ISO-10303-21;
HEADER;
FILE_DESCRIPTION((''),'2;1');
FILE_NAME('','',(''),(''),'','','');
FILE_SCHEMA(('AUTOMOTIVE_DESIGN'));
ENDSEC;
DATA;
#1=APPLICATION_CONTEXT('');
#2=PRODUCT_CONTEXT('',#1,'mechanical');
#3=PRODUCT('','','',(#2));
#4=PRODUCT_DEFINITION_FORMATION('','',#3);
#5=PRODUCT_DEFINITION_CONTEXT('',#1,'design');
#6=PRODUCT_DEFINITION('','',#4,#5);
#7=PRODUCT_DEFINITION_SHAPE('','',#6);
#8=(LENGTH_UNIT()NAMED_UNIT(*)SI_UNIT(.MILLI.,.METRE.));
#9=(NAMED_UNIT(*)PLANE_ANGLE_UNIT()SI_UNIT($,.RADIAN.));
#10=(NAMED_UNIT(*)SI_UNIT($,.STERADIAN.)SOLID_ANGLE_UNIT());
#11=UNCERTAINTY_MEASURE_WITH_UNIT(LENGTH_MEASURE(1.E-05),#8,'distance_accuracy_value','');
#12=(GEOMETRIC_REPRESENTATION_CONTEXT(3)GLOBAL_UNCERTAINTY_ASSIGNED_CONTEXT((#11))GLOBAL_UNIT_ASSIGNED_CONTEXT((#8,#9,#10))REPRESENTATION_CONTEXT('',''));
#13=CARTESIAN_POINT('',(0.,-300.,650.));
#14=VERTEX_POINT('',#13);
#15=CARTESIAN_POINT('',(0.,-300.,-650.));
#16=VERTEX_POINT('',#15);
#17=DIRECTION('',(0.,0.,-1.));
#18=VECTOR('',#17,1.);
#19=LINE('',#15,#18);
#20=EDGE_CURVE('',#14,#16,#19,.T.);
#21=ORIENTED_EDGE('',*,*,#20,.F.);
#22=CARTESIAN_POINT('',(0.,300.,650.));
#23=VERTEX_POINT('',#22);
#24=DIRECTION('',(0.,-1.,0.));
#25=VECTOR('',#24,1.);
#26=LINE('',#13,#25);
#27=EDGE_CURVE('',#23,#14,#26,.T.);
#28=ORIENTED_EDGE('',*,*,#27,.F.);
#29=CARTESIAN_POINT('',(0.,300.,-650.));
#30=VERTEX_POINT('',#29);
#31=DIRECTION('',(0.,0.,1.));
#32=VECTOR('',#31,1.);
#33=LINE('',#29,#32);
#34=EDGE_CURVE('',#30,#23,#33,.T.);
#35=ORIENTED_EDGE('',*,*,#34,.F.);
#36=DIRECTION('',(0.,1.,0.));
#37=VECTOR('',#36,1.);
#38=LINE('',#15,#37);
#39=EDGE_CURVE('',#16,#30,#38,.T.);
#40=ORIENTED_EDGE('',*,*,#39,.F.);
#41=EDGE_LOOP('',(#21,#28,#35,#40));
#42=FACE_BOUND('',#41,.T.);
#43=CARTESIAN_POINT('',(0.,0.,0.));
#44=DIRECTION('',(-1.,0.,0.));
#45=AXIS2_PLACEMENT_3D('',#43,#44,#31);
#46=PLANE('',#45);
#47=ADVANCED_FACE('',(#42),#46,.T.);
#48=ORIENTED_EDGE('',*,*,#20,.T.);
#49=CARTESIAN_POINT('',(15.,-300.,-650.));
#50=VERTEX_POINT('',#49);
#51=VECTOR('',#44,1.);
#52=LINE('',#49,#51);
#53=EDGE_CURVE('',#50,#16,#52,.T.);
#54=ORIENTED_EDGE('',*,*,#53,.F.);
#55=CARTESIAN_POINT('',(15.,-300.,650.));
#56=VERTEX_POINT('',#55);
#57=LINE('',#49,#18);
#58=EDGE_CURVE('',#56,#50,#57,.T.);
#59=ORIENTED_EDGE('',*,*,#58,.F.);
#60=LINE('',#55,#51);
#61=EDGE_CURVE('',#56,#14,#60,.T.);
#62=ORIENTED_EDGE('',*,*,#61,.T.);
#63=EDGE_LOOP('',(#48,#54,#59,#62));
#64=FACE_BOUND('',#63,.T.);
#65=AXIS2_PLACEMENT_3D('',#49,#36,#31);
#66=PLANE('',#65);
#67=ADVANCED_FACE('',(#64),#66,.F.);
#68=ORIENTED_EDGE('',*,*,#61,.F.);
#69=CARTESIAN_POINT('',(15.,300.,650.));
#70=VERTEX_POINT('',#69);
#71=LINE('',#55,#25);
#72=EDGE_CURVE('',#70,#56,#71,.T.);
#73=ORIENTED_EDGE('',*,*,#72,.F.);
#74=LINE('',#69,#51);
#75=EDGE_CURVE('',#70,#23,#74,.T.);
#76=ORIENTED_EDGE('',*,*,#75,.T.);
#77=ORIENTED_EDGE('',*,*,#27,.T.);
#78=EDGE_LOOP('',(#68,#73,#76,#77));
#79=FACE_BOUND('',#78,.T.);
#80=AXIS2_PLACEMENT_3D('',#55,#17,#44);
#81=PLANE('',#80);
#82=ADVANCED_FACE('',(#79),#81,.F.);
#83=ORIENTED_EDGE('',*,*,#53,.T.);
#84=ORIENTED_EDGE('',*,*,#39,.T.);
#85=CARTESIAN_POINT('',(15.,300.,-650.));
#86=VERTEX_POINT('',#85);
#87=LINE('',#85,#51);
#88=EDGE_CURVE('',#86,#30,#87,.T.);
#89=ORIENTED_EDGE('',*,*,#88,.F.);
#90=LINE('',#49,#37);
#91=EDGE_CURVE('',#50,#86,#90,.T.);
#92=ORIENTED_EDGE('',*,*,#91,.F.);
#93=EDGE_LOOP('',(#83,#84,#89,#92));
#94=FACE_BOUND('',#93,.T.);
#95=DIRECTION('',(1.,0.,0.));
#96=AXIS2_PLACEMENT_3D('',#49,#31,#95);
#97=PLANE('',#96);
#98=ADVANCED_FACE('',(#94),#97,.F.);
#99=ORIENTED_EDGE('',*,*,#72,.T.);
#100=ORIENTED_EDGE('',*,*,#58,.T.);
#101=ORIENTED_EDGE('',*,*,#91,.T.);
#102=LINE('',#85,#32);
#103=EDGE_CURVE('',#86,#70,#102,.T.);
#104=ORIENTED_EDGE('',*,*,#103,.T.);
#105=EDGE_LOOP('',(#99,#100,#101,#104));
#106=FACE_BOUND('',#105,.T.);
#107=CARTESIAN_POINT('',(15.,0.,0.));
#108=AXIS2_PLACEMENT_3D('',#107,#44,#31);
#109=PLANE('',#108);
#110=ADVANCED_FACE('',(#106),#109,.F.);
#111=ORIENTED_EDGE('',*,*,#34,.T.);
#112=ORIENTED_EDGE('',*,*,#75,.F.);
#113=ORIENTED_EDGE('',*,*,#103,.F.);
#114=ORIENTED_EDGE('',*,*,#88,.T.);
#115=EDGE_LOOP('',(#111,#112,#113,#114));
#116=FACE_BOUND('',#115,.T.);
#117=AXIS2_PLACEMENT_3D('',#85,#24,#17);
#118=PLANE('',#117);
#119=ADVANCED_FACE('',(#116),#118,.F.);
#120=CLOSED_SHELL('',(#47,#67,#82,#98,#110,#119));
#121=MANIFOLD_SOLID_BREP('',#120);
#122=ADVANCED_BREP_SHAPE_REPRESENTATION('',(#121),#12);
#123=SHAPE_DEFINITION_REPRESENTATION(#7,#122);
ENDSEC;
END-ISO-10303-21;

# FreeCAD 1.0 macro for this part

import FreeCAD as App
import Part
import Sketcher


def add_polygon(sketch, points):
    """Adds a closed chain of lines whose ends are joined by coincident constraints."""
    first, n = sketch.GeometryCount, len(points)
    for a, b in zip(points, points[1:] + points[:1]):
        sketch.addGeometry(Part.LineSegment(App.Vector(*a, 0), App.Vector(*b, 0)), False)
    for i in range(n):
        sketch.addConstraint(Sketcher.Constraint("Coincident", first + i, 2, first + (i + 1) % n, 1))

doc = App.newDocument("Part")
body = doc.addObject("PartDesign::Body", "Body")

# Sketch on YZ plane
sketch1 = body.newObject("Sketcher::SketchObject", "Sketch")
sketch1.AttachmentSupport = (doc.getObject("YZ_Plane"), [""])
sketch1.MapMode = "FlatFace"
add_polygon(sketch1, [(-300, 650), (-300, -650), (300, -650), (300, 650)])  # lines 0-3
sketch1.addConstraint(Sketcher.Constraint("Vertical", 0))
sketch1.addConstraint(Sketcher.Constraint("Horizontal", 1))
sketch1.addConstraint(Sketcher.Constraint("Vertical", 2))
sketch1.addConstraint(Sketcher.Constraint("Horizontal", 3))
sketch1.addConstraint(Sketcher.Constraint("Symmetric", 0, 2, 2, 2, -1, 1))
sketch1.addConstraint(Sketcher.Constraint("DistanceX", 1, 1, 1, 2, 600.0))
sketch1.addConstraint(Sketcher.Constraint("DistanceY", 0, 2, 0, 1, 1300.0))
pad1 = body.newObject("PartDesign::Pad", "Pad")
pad1.Profile = sketch1
pad1.Length = 15

doc.recompute()
